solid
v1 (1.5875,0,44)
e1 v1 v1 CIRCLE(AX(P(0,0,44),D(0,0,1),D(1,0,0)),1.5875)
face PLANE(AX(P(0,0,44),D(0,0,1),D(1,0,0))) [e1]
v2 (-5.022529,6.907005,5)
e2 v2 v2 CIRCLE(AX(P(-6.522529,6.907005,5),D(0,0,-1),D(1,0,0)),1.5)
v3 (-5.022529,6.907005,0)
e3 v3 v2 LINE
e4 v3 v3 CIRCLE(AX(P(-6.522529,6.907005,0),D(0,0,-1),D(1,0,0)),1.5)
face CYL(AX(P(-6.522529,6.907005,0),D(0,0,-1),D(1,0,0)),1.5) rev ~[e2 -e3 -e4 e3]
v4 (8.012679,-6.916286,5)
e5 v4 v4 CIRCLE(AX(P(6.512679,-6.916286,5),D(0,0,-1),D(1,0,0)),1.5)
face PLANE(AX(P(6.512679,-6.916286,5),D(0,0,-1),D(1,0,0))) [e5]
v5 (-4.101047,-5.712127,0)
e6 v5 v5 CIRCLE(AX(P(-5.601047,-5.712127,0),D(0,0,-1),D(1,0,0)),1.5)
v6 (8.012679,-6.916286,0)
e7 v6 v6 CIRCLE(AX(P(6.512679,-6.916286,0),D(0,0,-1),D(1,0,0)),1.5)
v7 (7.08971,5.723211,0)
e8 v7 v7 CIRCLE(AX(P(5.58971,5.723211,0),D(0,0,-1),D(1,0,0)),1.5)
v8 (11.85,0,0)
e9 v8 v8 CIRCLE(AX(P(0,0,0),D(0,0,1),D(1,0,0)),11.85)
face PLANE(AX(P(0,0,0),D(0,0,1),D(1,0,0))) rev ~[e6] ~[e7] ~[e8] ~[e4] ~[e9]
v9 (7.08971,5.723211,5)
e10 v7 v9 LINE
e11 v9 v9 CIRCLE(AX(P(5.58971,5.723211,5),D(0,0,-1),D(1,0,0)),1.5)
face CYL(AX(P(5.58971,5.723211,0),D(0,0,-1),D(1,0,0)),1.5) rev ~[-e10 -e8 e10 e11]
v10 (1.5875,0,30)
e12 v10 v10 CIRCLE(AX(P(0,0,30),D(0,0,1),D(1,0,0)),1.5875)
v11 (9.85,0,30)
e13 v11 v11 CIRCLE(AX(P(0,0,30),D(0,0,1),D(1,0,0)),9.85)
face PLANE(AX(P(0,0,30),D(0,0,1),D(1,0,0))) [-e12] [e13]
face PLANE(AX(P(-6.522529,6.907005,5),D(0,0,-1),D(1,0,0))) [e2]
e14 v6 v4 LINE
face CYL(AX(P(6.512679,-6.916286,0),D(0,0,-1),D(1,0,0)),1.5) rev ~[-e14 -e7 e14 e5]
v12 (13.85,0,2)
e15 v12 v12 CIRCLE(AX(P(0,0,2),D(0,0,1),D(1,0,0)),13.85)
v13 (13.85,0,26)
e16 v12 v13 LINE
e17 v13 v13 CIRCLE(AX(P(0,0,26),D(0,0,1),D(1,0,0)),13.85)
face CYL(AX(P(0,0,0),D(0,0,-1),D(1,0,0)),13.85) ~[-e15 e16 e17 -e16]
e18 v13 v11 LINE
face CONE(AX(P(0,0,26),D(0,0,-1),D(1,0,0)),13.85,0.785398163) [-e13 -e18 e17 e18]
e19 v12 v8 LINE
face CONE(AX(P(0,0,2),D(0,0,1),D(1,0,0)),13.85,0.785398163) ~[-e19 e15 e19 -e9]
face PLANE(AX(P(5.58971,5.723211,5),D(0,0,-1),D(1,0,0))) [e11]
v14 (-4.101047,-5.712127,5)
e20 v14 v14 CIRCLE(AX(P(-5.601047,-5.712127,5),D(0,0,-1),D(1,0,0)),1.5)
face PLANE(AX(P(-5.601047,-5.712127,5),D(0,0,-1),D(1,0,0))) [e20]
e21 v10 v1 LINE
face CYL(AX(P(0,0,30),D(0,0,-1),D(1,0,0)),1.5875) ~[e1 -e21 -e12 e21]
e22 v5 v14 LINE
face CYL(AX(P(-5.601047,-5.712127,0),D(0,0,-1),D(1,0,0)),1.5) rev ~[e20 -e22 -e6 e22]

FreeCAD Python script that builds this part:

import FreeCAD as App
import Part
import Sketcher

V = App.Vector


def edges_at(feature, points):
    """Names of the edges that pass closest to the given points."""
    edges = feature.Shape.Edges
    near = lambda p: min(range(len(edges)), key=lambda i: edges[i].distToShape(Part.Vertex(*p))[0])
    return sorted({f"Edge{near(p) + 1}" for p in points})

doc = App.newDocument("Part")
params = doc.addObject("Spreadsheet::Sheet", "Params")
for row, (alias, value) in enumerate([
    ("sketch1_diameter", "27.7 mm"),
    ("pad1_length", "30 mm"),
    ("chamfer_size", "4 mm"),
    ("pad2_length", "14 mm"),
    ("chamfer2_size", "2 mm"),
    ("sketch3_diameter", "3 mm"),
    ("pocket1_length", "5 mm"),
], start=1):
    params.set(f"A{row}", alias)
    params.set(f"B{row}", "=" + value)
    params.setAlias(f"B{row}", alias)

body = doc.addObject("PartDesign::Body", "Body")

# Sketch on XY plane
sketch1 = body.newObject("Sketcher::SketchObject", "Sketch")
sketch1.AttachmentSupport = (doc.getObject("XY_Plane"), [""])
sketch1.MapMode = "FlatFace"
sketch1.addGeometry(Part.Circle(V(0, 0, 0), V(0, 0, 1), 14), False)
sketch1.addConstraint(Sketcher.Constraint("Coincident", 0, 3, -1, 1))
sketch1.addConstraint(Sketcher.Constraint("Diameter", 0, 27.7))
sketch1.setExpression("Constraints[1]", "Params.sketch1_diameter")
pad1 = body.newObject("PartDesign::Pad", "Pad")
pad1.Profile = sketch1
pad1.setExpression("Length", "Params.pad1_length")
doc.recompute()

chamfer = body.newObject("PartDesign::Chamfer", "Chamfer")
chamfer.Base = (pad1, edges_at(pad1, [(-13.85, 0, 30)]))
chamfer.setExpression("Size", "Params.chamfer_size")

# Sketch on XY plane
sketch2 = body.newObject("Sketcher::SketchObject", "Sketch001")
sketch2.AttachmentSupport = (doc.getObject("XY_Plane"), [""])
sketch2.MapMode = "FlatFace"
sketch2.AttachmentOffset = App.Placement(V(0, 0, 30), App.Rotation())
sketch2.addGeometry(Part.Circle(V(0, 0, 0), V(0, 0, 1), 1.6), False)
sketch2.addConstraint(Sketcher.Constraint("Coincident", 0, 3, -1, 1))
sketch2.addConstraint(Sketcher.Constraint("Diameter", 0, 3.175))
pad2 = body.newObject("PartDesign::Pad", "Pad001")
pad2.Profile = sketch2
pad2.setExpression("Length", "Params.pad2_length")
doc.recompute()

chamfer2 = body.newObject("PartDesign::Chamfer", "Chamfer001")
chamfer2.Base = (pad2, edges_at(pad2, [(-13.85, 0, 0)]))
chamfer2.setExpression("Size", "Params.chamfer2_size")

# Sketch on XY plane
sketch3 = body.newObject("Sketcher::SketchObject", "Sketch002")
sketch3.AttachmentSupport = (doc.getObject("XY_Plane"), [""])
sketch3.MapMode = "FlatFace"
sketch3.addGeometry(Part.Circle(V(5.6, 5.7, 0), V(0, 0, 1), 1.5), False)
sketch3.addGeometry(Part.Circle(V(6.5, -6.9, 0), V(0, 0, 1), 1.5), False)
sketch3.addGeometry(Part.Circle(V(-5.6, -5.7, 0), V(0, 0, 1), 1.5), False)
sketch3.addGeometry(Part.Circle(V(-6.5, 6.9, 0), V(0, 0, 1), 1.5), False)
sketch3.addConstraint(Sketcher.Constraint("Equal", 0, 1))
sketch3.addConstraint(Sketcher.Constraint("Equal", 1, 2))
sketch3.addConstraint(Sketcher.Constraint("Equal", 2, 3))
sketch3.addConstraint(Sketcher.Constraint("Diameter", 0, 3.0))
sketch3.addConstraint(Sketcher.Constraint("DistanceX", -1, 1, 0, 3, 5.58971))
sketch3.addConstraint(Sketcher.Constraint("DistanceY", -1, 1, 0, 3, 5.723211))
sketch3.addConstraint(Sketcher.Constraint("DistanceX", -1, 1, 1, 3, 6.512679))
sketch3.addConstraint(Sketcher.Constraint("DistanceX", 3, 3, -1, 1, 6.522529))
sketch3.addConstraint(Sketcher.Constraint("DistanceY", 1, 3, 2, 3, 1.204159))
sketch3.addConstraint(Sketcher.Constraint("DistanceX", 3, 3, 2, 3, 0.921482))
sketch3.addConstraint(Sketcher.Constraint("DistanceY", 1, 3, 3, 3, 13.823291))
sketch3.addConstraint(Sketcher.Constraint("DistanceY", 1, 3, -1, 1, 6.916286))
sketch3.setExpression("Constraints[3]", "Params.sketch3_diameter")
pocket1 = body.newObject("PartDesign::Pocket", "Pocket")
pocket1.Profile = sketch3
pocket1.setExpression("Length", "Params.pocket1_length")
pocket1.Reversed = True

doc.recompute()
